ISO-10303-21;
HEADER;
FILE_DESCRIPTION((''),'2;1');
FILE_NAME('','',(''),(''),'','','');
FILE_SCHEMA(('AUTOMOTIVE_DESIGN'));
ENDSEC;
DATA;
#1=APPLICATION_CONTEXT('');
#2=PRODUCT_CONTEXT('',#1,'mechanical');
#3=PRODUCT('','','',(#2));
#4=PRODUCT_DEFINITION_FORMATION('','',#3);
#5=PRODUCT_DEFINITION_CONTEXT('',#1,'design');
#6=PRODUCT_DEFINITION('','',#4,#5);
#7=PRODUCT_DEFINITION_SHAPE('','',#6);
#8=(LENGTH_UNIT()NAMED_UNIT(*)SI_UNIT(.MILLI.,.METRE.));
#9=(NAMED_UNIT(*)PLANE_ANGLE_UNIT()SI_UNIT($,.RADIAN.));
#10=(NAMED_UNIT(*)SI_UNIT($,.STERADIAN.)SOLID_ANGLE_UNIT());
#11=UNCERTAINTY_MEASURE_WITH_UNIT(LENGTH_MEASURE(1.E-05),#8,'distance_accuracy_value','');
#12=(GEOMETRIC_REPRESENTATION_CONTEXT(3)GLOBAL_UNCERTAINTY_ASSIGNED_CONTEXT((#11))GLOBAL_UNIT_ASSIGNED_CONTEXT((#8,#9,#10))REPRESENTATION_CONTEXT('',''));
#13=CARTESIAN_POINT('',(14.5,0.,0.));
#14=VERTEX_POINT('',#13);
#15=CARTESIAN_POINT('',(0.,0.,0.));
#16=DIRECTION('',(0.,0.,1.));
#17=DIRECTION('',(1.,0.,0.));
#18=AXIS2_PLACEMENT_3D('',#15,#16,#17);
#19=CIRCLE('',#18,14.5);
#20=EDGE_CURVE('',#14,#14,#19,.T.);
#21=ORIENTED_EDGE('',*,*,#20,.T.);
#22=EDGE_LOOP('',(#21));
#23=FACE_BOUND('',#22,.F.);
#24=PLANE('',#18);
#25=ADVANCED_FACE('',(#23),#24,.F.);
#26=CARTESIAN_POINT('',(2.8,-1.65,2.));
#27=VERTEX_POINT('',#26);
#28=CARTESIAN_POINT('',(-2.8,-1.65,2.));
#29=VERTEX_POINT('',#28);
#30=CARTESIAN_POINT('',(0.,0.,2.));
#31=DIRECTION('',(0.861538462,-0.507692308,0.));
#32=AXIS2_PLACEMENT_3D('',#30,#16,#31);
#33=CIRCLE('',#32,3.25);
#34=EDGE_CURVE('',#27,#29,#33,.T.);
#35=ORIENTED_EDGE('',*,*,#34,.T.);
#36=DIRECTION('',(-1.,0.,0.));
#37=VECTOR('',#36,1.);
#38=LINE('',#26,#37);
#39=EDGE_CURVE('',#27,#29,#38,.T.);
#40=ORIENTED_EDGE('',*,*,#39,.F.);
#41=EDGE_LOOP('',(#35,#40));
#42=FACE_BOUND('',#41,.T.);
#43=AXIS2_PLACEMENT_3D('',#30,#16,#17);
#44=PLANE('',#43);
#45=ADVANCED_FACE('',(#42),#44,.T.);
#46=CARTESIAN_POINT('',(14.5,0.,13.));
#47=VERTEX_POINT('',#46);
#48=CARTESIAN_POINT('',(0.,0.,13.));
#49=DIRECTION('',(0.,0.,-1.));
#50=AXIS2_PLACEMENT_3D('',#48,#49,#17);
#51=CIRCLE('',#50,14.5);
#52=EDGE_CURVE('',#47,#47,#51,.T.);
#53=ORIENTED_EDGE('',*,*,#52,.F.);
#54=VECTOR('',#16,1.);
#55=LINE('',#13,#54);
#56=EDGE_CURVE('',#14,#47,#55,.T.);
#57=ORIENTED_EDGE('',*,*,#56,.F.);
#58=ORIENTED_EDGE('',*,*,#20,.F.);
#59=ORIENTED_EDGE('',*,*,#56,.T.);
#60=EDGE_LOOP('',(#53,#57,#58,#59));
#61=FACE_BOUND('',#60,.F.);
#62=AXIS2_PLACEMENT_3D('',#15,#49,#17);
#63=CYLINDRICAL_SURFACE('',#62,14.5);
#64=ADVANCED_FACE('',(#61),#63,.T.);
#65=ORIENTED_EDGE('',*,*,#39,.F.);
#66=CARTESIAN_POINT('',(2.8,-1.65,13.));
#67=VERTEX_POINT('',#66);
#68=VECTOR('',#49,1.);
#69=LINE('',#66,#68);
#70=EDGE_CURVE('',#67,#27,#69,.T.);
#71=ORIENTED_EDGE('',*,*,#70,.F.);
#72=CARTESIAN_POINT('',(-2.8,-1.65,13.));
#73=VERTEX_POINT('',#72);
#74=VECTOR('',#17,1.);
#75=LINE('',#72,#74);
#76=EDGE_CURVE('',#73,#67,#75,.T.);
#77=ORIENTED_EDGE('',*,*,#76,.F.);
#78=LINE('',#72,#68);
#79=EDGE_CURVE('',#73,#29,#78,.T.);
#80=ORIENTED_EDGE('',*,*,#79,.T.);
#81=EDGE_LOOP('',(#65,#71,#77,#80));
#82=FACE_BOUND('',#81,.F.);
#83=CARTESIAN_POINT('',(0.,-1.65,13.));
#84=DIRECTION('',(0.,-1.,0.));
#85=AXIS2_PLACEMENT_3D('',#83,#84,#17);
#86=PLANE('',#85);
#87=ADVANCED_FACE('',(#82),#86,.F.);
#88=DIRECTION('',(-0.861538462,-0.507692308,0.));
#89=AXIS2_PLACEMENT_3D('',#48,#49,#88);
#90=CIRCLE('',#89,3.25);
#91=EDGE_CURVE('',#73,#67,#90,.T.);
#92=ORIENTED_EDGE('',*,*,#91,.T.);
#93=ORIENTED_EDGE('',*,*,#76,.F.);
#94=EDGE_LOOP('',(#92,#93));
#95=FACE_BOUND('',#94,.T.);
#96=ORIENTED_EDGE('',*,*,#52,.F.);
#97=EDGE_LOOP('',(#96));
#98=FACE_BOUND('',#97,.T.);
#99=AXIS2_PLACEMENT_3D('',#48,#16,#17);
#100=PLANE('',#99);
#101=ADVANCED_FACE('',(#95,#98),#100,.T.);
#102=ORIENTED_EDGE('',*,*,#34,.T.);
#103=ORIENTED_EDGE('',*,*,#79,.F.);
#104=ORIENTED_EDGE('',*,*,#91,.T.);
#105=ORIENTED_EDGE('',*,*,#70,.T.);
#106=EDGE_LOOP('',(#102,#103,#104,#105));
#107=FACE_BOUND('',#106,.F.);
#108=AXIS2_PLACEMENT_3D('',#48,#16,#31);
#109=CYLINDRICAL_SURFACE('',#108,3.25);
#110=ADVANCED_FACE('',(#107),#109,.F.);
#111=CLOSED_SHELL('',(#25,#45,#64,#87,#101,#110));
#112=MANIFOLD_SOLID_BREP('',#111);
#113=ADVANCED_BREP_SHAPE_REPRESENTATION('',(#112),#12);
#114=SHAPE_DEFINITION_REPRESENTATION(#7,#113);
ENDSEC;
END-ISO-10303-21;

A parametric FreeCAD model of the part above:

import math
import FreeCAD as App
import Part
import Sketcher
Q = App.Units.Quantity

doc = App.newDocument("Part")
body = doc.addObject("PartDesign::Body", "Body")

sketch1 = body.newObject("Sketcher::SketchObject", "Sketch")
sketch1.AttachmentSupport = (doc.getObject("XY_Plane"), [""])
sketch1.MapMode = "FlatFace"
sketch1.addGeometry(Part.Circle(App.Vector(0, 0, 0), App.Vector(0, 0, 1), 14), False)
sketch1.addConstraint(Sketcher.Constraint("Coincident", 0, 3, -1, 1))
sketch1.addConstraint(Sketcher.Constraint("Diameter", 0, Q("29 mm")))
pad1 = body.newObject("PartDesign::Pad", "Pad")
pad1.Profile = sketch1
pad1.Length = 13

sketch2 = body.newObject("Sketcher::SketchObject", "Sketch001")
sketch2.AttachmentSupport = (doc.getObject("XY_Plane"), [""])
sketch2.MapMode = "FlatFace"
sketch2.AttachmentOffset = App.Placement(App.Vector(0, 0, 13), App.Rotation())
sketch2.addGeometry(Part.LineSegment(App.Vector(-2.8, -1.6, 0), App.Vector(2.8, -1.6, 0)), False)
sketch2.addGeometry(Part.ArcOfCircle(Part.Circle(App.Vector(0, 0, 0), App.Vector(0, 0, 1), 3.2), math.radians(-31), math.radians(211)), False)
sketch2.addConstraint(Sketcher.Constraint("Coincident", 0, 1, 1, 2))
sketch2.addConstraint(Sketcher.Constraint("Coincident", 1, 1, 0, 2))
sketch2.addConstraint(Sketcher.Constraint("Horizontal", 0))
sketch2.addConstraint(Sketcher.Constraint("Coincident", 1, 3, -1, 1))
sketch2.addConstraint(Sketcher.Constraint("Radius", 1, Q("3.25 mm")))
sketch2.addConstraint(Sketcher.Constraint("DistanceX", 0, 1, 0, 2, Q("5.6 mm")))
pocket1 = body.newObject("PartDesign::Pocket", "Pocket")
pocket1.Profile = sketch2
pocket1.Length = 11

doc.recompute()
